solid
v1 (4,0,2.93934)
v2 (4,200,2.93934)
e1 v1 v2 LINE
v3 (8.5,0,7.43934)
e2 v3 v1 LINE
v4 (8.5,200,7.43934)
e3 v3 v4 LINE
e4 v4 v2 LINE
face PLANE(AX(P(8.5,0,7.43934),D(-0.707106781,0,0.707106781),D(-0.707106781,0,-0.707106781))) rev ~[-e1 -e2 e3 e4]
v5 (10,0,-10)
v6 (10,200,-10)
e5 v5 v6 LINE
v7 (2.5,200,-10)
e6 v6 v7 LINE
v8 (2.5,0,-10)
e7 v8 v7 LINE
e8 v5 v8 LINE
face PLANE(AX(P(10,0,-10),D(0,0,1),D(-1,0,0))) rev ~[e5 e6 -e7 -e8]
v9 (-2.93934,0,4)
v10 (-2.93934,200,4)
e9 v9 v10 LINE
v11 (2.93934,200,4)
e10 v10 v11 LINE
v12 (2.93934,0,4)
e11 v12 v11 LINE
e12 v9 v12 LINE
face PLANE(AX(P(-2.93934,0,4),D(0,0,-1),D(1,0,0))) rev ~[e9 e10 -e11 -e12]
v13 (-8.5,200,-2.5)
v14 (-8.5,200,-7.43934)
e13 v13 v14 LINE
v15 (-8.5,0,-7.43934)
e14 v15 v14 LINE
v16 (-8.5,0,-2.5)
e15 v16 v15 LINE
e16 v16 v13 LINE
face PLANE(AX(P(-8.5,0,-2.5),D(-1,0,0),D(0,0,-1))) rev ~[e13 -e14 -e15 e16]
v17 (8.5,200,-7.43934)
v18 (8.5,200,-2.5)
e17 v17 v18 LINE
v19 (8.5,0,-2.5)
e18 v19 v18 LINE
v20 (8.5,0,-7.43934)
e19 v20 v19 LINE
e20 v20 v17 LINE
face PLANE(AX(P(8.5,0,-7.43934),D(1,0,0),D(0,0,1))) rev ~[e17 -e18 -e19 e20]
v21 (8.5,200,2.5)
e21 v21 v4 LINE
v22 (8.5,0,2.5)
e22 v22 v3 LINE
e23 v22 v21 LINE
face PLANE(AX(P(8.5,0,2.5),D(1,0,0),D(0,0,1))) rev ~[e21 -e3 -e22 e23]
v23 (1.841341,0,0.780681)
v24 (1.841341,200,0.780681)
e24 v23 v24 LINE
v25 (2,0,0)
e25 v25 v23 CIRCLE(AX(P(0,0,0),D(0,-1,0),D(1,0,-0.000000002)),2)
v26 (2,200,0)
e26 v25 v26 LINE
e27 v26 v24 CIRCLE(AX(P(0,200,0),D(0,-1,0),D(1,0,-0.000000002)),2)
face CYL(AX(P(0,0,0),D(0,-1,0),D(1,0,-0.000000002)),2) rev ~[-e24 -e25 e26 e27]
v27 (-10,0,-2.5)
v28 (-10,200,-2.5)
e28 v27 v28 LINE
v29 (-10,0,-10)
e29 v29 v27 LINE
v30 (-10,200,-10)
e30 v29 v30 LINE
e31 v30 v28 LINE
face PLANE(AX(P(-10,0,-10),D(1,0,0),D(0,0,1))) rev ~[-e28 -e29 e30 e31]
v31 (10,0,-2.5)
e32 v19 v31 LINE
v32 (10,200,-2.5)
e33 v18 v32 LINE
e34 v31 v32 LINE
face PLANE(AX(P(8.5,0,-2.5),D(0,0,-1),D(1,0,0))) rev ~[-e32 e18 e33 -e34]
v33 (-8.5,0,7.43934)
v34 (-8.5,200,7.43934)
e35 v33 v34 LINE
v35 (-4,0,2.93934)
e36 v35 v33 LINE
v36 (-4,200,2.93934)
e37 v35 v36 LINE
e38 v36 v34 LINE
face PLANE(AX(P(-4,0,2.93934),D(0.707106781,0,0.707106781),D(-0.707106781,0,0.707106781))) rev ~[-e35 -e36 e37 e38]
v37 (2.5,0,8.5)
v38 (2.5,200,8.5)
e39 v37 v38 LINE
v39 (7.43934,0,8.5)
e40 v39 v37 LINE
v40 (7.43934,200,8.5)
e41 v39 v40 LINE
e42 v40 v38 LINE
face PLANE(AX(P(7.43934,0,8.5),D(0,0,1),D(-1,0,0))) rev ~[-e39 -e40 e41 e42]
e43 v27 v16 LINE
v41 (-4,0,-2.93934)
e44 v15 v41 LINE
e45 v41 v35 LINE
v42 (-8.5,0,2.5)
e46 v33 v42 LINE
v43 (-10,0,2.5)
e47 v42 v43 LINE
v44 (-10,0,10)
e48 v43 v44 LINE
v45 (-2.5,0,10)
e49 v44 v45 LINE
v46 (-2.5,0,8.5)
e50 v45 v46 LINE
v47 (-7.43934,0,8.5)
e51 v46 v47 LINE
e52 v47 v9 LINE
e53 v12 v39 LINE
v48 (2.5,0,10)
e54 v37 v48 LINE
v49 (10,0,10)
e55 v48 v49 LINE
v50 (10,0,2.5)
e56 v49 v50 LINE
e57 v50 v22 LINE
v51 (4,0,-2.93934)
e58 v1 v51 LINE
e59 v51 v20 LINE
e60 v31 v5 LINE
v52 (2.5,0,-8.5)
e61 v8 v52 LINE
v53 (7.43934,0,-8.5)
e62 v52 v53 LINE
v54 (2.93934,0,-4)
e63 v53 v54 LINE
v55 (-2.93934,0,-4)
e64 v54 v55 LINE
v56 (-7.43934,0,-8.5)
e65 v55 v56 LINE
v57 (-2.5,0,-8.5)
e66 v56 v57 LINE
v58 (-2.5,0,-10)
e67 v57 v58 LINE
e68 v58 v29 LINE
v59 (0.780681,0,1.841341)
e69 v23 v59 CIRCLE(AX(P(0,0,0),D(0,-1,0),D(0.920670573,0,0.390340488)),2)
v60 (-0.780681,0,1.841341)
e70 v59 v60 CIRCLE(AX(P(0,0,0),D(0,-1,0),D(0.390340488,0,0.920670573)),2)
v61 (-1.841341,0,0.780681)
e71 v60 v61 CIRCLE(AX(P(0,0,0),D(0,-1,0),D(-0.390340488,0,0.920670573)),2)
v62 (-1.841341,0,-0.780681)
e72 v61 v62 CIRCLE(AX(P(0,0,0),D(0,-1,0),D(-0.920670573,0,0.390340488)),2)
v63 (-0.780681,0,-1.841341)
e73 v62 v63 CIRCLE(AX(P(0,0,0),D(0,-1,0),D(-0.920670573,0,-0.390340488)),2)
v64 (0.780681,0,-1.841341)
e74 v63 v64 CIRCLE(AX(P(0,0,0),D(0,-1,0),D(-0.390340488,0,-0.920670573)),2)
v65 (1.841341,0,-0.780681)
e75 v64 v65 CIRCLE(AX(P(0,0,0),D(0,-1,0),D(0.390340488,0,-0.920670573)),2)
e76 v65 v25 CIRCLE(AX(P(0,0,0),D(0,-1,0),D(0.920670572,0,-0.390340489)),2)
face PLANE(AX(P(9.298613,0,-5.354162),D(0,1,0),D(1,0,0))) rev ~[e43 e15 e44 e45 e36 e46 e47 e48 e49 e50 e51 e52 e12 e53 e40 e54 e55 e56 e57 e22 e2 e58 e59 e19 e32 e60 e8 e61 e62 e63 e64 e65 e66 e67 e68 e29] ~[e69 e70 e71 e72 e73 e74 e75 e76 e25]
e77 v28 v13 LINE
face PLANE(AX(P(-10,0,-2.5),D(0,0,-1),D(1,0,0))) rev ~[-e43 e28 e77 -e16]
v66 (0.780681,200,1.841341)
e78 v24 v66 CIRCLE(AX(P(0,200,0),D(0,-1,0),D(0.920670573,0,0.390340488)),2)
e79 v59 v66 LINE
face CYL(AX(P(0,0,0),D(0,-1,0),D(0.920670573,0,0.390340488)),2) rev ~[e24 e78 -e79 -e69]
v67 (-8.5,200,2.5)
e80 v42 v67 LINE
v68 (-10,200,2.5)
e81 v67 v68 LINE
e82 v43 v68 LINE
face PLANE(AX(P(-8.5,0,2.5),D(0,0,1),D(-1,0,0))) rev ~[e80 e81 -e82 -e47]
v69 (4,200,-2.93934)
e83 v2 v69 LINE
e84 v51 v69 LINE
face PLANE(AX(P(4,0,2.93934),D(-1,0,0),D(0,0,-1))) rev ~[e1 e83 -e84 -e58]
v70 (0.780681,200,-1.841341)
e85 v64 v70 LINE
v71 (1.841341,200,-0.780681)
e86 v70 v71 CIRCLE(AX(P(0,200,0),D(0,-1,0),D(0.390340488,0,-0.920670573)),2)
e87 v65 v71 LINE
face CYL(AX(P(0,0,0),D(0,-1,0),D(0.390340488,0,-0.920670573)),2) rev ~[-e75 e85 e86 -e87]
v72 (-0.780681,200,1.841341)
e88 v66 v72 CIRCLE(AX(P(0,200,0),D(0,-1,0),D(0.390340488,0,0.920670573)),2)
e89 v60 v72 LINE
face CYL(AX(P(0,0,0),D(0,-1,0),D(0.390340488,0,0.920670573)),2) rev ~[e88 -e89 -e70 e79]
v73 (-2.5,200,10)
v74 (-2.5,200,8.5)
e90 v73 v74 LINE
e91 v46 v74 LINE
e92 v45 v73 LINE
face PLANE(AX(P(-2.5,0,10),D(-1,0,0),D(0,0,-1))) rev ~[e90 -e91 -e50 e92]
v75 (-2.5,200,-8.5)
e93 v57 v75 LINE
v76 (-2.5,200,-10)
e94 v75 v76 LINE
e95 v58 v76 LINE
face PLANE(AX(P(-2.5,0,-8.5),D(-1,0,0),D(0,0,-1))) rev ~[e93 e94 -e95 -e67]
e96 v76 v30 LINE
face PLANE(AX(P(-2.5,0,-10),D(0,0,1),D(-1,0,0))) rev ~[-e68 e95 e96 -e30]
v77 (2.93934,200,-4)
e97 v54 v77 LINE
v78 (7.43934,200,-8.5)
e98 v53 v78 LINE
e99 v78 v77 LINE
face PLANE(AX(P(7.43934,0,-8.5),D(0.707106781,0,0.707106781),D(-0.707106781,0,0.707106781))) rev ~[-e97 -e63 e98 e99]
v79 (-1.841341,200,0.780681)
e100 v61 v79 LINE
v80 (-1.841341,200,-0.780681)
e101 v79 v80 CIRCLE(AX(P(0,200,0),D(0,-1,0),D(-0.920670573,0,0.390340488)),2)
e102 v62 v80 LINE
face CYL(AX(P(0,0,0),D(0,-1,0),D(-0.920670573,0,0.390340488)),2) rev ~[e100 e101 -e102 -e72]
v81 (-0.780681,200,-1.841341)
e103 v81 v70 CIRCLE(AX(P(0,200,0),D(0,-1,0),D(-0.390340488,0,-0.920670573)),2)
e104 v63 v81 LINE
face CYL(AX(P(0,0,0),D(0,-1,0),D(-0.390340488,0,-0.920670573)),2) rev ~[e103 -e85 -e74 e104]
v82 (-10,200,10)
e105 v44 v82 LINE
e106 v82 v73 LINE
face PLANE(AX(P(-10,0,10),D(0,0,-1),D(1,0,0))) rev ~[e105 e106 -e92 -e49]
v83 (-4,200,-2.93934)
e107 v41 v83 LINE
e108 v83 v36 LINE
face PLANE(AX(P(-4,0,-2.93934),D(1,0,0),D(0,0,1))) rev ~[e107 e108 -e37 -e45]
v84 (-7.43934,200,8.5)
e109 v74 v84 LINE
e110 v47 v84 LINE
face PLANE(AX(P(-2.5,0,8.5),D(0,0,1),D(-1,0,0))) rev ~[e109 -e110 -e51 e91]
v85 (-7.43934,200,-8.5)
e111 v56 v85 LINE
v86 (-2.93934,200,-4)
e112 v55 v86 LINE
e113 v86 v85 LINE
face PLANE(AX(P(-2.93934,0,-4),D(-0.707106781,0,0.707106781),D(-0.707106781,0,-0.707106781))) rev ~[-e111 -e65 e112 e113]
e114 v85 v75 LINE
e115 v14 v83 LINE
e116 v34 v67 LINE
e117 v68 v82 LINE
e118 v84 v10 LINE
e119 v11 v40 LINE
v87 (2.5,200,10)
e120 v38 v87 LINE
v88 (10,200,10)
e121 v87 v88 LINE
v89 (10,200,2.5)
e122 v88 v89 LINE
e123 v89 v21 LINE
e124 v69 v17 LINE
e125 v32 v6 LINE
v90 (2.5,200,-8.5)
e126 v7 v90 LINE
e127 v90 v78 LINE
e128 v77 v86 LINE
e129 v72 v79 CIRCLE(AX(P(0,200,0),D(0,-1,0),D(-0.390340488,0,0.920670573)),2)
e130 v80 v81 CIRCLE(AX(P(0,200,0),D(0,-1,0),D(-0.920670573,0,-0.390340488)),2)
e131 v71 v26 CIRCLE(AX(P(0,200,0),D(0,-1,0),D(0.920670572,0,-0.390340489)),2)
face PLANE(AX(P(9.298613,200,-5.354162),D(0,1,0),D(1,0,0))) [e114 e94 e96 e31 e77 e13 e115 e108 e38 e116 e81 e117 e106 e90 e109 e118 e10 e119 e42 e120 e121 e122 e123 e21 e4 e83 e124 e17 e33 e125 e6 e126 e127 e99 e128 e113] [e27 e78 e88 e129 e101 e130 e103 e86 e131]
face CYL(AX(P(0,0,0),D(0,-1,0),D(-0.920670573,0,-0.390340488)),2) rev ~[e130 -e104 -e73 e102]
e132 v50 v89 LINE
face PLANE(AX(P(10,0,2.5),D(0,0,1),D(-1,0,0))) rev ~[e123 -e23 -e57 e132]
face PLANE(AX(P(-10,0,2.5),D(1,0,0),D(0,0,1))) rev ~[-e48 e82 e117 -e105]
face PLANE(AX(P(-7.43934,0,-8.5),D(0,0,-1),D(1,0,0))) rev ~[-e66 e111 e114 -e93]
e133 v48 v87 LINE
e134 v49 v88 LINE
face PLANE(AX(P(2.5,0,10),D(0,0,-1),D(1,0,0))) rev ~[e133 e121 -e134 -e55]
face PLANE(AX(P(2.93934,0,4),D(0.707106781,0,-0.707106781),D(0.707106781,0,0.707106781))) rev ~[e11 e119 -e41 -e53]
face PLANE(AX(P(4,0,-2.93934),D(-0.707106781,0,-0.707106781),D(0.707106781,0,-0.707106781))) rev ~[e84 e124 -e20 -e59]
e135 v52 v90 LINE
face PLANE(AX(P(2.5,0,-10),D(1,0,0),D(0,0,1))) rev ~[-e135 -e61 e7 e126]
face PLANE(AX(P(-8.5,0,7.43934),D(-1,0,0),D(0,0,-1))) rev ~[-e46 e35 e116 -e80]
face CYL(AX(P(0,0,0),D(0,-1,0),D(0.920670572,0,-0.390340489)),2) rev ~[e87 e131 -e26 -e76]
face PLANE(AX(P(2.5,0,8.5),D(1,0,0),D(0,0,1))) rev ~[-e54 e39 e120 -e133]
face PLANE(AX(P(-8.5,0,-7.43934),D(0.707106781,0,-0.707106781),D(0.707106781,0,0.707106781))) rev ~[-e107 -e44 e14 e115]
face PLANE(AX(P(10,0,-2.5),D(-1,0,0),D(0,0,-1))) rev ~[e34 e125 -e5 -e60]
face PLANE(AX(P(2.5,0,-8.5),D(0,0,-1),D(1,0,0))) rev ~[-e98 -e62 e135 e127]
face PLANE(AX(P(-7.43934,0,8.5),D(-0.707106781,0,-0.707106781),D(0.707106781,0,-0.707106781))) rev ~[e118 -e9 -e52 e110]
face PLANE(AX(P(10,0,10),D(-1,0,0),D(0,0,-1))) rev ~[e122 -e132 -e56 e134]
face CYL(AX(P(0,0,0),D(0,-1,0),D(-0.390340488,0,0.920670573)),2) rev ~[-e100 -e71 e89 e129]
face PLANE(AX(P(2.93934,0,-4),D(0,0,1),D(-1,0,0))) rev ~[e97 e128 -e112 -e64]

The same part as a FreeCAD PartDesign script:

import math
import FreeCAD as App
import Part
import Sketcher
Q = App.Units.Quantity

doc = App.newDocument("Part")
body = doc.addObject("PartDesign::Body", "Body")

# Sketch on XZ plane
sketch1 = body.newObject("Sketcher::SketchObject", "Sketch")
sketch1.AttachmentSupport = (doc.getObject("XZ_Plane"), [""])
sketch1.MapMode = "FlatFace"
sketch1.addGeometry(Part.LineSegment(App.Vector(8.5, -2.5, 0), App.Vector(10, -2.5, 0)), False)
sketch1.addGeometry(Part.LineSegment(App.Vector(10, -2.5, 0), App.Vector(10, -10, 0)), False)
sketch1.addGeometry(Part.LineSegment(App.Vector(10, -10, 0), App.Vector(2.5, -10, 0)), False)
sketch1.addGeometry(Part.LineSegment(App.Vector(2.5, -10, 0), App.Vector(2.5, -8.5, 0)), False)
sketch1.addGeometry(Part.LineSegment(App.Vector(2.5, -8.5, 0), App.Vector(7.4, -8.5, 0)), False)
sketch1.addGeometry(Part.LineSegment(App.Vector(7.4, -8.5, 0), App.Vector(2.9, -4, 0)), False)
sketch1.addGeometry(Part.LineSegment(App.Vector(2.9, -4, 0), App.Vector(-2.9, -4, 0)), False)
sketch1.addGeometry(Part.LineSegment(App.Vector(-2.9, -4, 0), App.Vector(-7.4, -8.5, 0)), False)
sketch1.addGeometry(Part.LineSegment(App.Vector(-7.4, -8.5, 0), App.Vector(-2.5, -8.5, 0)), False)
sketch1.addGeometry(Part.LineSegment(App.Vector(-2.5, -8.5, 0), App.Vector(-2.5, -10, 0)), False)
sketch1.addGeometry(Part.LineSegment(App.Vector(-2.5, -10, 0), App.Vector(-10, -10, 0)), False)
sketch1.addGeometry(Part.LineSegment(App.Vector(-10, -10, 0), App.Vector(-10, -2.5, 0)), False)
sketch1.addGeometry(Part.LineSegment(App.Vector(-10, -2.5, 0), App.Vector(-8.5, -2.5, 0)), False)
sketch1.addGeometry(Part.LineSegment(App.Vector(-8.5, -2.5, 0), App.Vector(-8.5, -7.4, 0)), False)
sketch1.addGeometry(Part.LineSegment(App.Vector(-8.5, -7.4, 0), App.Vector(-4, -2.9, 0)), False)
sketch1.addGeometry(Part.LineSegment(App.Vector(-4, -2.9, 0), App.Vector(-4, 2.9, 0)), False)
sketch1.addGeometry(Part.LineSegment(App.Vector(-4, 2.9, 0), App.Vector(-8.5, 7.4, 0)), False)
sketch1.addGeometry(Part.LineSegment(App.Vector(-8.5, 7.4, 0), App.Vector(-8.5, 2.5, 0)), False)
sketch1.addGeometry(Part.LineSegment(App.Vector(-8.5, 2.5, 0), App.Vector(-10, 2.5, 0)), False)
sketch1.addGeometry(Part.LineSegment(App.Vector(-10, 2.5, 0), App.Vector(-10, 10, 0)), False)
sketch1.addGeometry(Part.LineSegment(App.Vector(-10, 10, 0), App.Vector(-2.5, 10, 0)), False)
sketch1.addGeometry(Part.LineSegment(App.Vector(-2.5, 10, 0), App.Vector(-2.5, 8.5, 0)), False)
sketch1.addGeometry(Part.LineSegment(App.Vector(-2.5, 8.5, 0), App.Vector(-7.4, 8.5, 0)), False)
sketch1.addGeometry(Part.LineSegment(App.Vector(-7.4, 8.5, 0), App.Vector(-2.9, 4, 0)), False)
sketch1.addGeometry(Part.LineSegment(App.Vector(-2.9, 4, 0), App.Vector(2.9, 4, 0)), False)
sketch1.addGeometry(Part.LineSegment(App.Vector(2.9, 4, 0), App.Vector(7.4, 8.5, 0)), False)
sketch1.addGeometry(Part.LineSegment(App.Vector(7.4, 8.5, 0), App.Vector(2.5, 8.5, 0)), False)
sketch1.addGeometry(Part.LineSegment(App.Vector(2.5, 8.5, 0), App.Vector(2.5, 10, 0)), False)
sketch1.addGeometry(Part.LineSegment(App.Vector(2.5, 10, 0), App.Vector(10, 10, 0)), False)
sketch1.addGeometry(Part.LineSegment(App.Vector(10, 10, 0), App.Vector(10, 2.5, 0)), False)
sketch1.addGeometry(Part.LineSegment(App.Vector(10, 2.5, 0), App.Vector(8.5, 2.5, 0)), False)
sketch1.addGeometry(Part.LineSegment(App.Vector(8.5, 2.5, 0), App.Vector(8.5, 7.4, 0)), False)
sketch1.addGeometry(Part.LineSegment(App.Vector(8.5, 7.4, 0), App.Vector(4, 2.9, 0)), False)
sketch1.addGeometry(Part.LineSegment(App.Vector(4, 2.9, 0), App.Vector(4, -2.9, 0)), False)
sketch1.addGeometry(Part.LineSegment(App.Vector(4, -2.9, 0), App.Vector(8.5, -7.4, 0)), False)
sketch1.addGeometry(Part.LineSegment(App.Vector(8.5, -7.4, 0), App.Vector(8.5, -2.5, 0)), False)
sketch1.addGeometry(Part.ArcOfCircle(Part.Circle(App.Vector(0, 0, 0), App.Vector(0, 0, 1), 2), math.radians(-67), math.radians(-23)), False)
sketch1.addGeometry(Part.ArcOfCircle(Part.Circle(App.Vector(0, 0, 0), App.Vector(0, 0, 1), 2), math.radians(-23), math.radians(0)), False)
sketch1.addGeometry(Part.ArcOfCircle(Part.Circle(App.Vector(0, 0, 0), App.Vector(0, 0, 1), 2), math.radians(0), math.radians(23)), False)
sketch1.addGeometry(Part.ArcOfCircle(Part.Circle(App.Vector(0, 0, 0), App.Vector(0, 0, 1), 2), math.radians(23), math.radians(67)), False)
sketch1.addGeometry(Part.ArcOfCircle(Part.Circle(App.Vector(0, 0, 0), App.Vector(0, 0, 1), 2), math.radians(67), math.radians(113)), False)
sketch1.addGeometry(Part.ArcOfCircle(Part.Circle(App.Vector(0, 0, 0), App.Vector(0, 0, 1), 2), math.radians(113), math.radians(157)), False)
sketch1.addGeometry(Part.ArcOfCircle(Part.Circle(App.Vector(0, 0, 0), App.Vector(0, 0, 1), 2), math.radians(157), math.radians(203)), False)
sketch1.addGeometry(Part.ArcOfCircle(Part.Circle(App.Vector(0, 0, 0), App.Vector(0, 0, 1), 2), math.radians(-157), math.radians(-113)), False)
sketch1.addGeometry(Part.ArcOfCircle(Part.Circle(App.Vector(0, 0, 0), App.Vector(0, 0, 1), 2), math.radians(-113), math.radians(-67)), False)
sketch1.addConstraint(Sketcher.Constraint("Coincident", 0, 2, 1, 1))
sketch1.addConstraint(Sketcher.Constraint("Coincident", 1, 2, 2, 1))
sketch1.addConstraint(Sketcher.Constraint("Coincident", 2, 2, 3, 1))
sketch1.addConstraint(Sketcher.Constraint("Coincident", 3, 2, 4, 1))
sketch1.addConstraint(Sketcher.Constraint("Coincident", 4, 2, 5, 1))
sketch1.addConstraint(Sketcher.Constraint("Coincident", 5, 2, 6, 1))
sketch1.addConstraint(Sketcher.Constraint("Coincident", 6, 2, 7, 1))
sketch1.addConstraint(Sketcher.Constraint("Coincident", 7, 2, 8, 1))
sketch1.addConstraint(Sketcher.Constraint("Coincident", 8, 2, 9, 1))
sketch1.addConstraint(Sketcher.Constraint("Coincident", 9, 2, 10, 1))
sketch1.addConstraint(Sketcher.Constraint("Coincident", 10, 2, 11, 1))
sketch1.addConstraint(Sketcher.Constraint("Coincident", 11, 2, 12, 1))
sketch1.addConstraint(Sketcher.Constraint("Coincident", 12, 2, 13, 1))
sketch1.addConstraint(Sketcher.Constraint("Coincident", 13, 2, 14, 1))
sketch1.addConstraint(Sketcher.Constraint("Coincident", 14, 2, 15, 1))
sketch1.addConstraint(Sketcher.Constraint("Coincident", 15, 2, 16, 1))
sketch1.addConstraint(Sketcher.Constraint("Coincident", 16, 2, 17, 1))
sketch1.addConstraint(Sketcher.Constraint("Coincident", 17, 2, 18, 1))
sketch1.addConstraint(Sketcher.Constraint("Coincident", 18, 2, 19, 1))
sketch1.addConstraint(Sketcher.Constraint("Coincident", 19, 2, 20, 1))
sketch1.addConstraint(Sketcher.Constraint("Coincident", 20, 2, 21, 1))
sketch1.addConstraint(Sketcher.Constraint("Coincident", 21, 2, 22, 1))
sketch1.addConstraint(Sketcher.Constraint("Coincident", 22, 2, 23, 1))
sketch1.addConstraint(Sketcher.Constraint("Coincident", 23, 2, 24, 1))
sketch1.addConstraint(Sketcher.Constraint("Coincident", 24, 2, 25, 1))
sketch1.addConstraint(Sketcher.Constraint("Coincident", 25, 2, 26, 1))
sketch1.addConstraint(Sketcher.Constraint("Coincident", 26, 2, 27, 1))
sketch1.addConstraint(Sketcher.Constraint("Coincident", 27, 2, 28, 1))
sketch1.addConstraint(Sketcher.Constraint("Coincident", 28, 2, 29, 1))
sketch1.addConstraint(Sketcher.Constraint("Coincident", 29, 2, 30, 1))
sketch1.addConstraint(Sketcher.Constraint("Coincident", 30, 2, 31, 1))
sketch1.addConstraint(Sketcher.Constraint("Coincident", 31, 2, 32, 1))
sketch1.addConstraint(Sketcher.Constraint("Coincident", 32, 2, 33, 1))
sketch1.addConstraint(Sketcher.Constraint("Coincident", 33, 2, 34, 1))
sketch1.addConstraint(Sketcher.Constraint("Coincident", 34, 2, 35, 1))
sketch1.addConstraint(Sketcher.Constraint("Coincident", 35, 2, 0, 1))
sketch1.addConstraint(Sketcher.Constraint("Tangent", 36, 2, 37, 1))
sketch1.addConstraint(Sketcher.Constraint("Tangent", 37, 2, 38, 1))
sketch1.addConstraint(Sketcher.Constraint("Tangent", 38, 2, 39, 1))
sketch1.addConstraint(Sketcher.Constraint("Tangent", 39, 2, 40, 1))
sketch1.addConstraint(Sketcher.Constraint("Tangent", 40, 2, 41, 1))
sketch1.addConstraint(Sketcher.Constraint("Tangent", 41, 2, 42, 1))
sketch1.addConstraint(Sketcher.Constraint("Tangent", 42, 2, 43, 1))
sketch1.addConstraint(Sketcher.Constraint("Tangent", 43, 2, 44, 1))
sketch1.addConstraint(Sketcher.Constraint("Tangent", 44, 2, 36, 1))
sketch1.addConstraint(Sketcher.Constraint("Horizontal", 0))
sketch1.addConstraint(Sketcher.Constraint("Vertical", 1))
sketch1.addConstraint(Sketcher.Constraint("Horizontal", 2))
sketch1.addConstraint(Sketcher.Constraint("Vertical", 3))
sketch1.addConstraint(Sketcher.Constraint("Horizontal", 4))
sketch1.addConstraint(Sketcher.Constraint("Horizontal", 6))
sketch1.addConstraint(Sketcher.Constraint("Horizontal", 8))
sketch1.addConstraint(Sketcher.Constraint("Vertical", 9))
sketch1.addConstraint(Sketcher.Constraint("Horizontal", 10))
sketch1.addConstraint(Sketcher.Constraint("Vertical", 11))
sketch1.addConstraint(Sketcher.Constraint("Horizontal", 12))
sketch1.addConstraint(Sketcher.Constraint("Vertical", 13))
sketch1.addConstraint(Sketcher.Constraint("Vertical", 15))
sketch1.addConstraint(Sketcher.Constraint("Vertical", 17))
sketch1.addConstraint(Sketcher.Constraint("Horizontal", 18))
sketch1.addConstraint(Sketcher.Constraint("Vertical", 19))
sketch1.addConstraint(Sketcher.Constraint("Horizontal", 20))
sketch1.addConstraint(Sketcher.Constraint("Vertical", 21))
sketch1.addConstraint(Sketcher.Constraint("Horizontal", 22))
sketch1.addConstraint(Sketcher.Constraint("Horizontal", 24))
sketch1.addConstraint(Sketcher.Constraint("Horizontal", 26))
sketch1.addConstraint(Sketcher.Constraint("Vertical", 27))
sketch1.addConstraint(Sketcher.Constraint("Horizontal", 28))
sketch1.addConstraint(Sketcher.Constraint("Vertical", 29))
sketch1.addConstraint(Sketcher.Constraint("Horizontal", 30))
sketch1.addConstraint(Sketcher.Constraint("Vertical", 31))
sketch1.addConstraint(Sketcher.Constraint("Vertical", 33))
sketch1.addConstraint(Sketcher.Constraint("Vertical", 35))
sketch1.addConstraint(Sketcher.Constraint("Coincident", 36, 3, -1, 1))
sketch1.addConstraint(Sketcher.Constraint("Coincident", 38, 3, -1, 1))
sketch1.addConstraint(Sketcher.Constraint("Coincident", 40, 3, -1, 1))
sketch1.addConstraint(Sketcher.Constraint("Coincident", 42, 3, -1, 1))
sketch1.addConstraint(Sketcher.Constraint("Symmetric", 0, 2, 18, 2, -1, 1))
sketch1.addConstraint(Sketcher.Constraint("Symmetric", 2, 2, 20, 2, -1, 1))
sketch1.addConstraint(Sketcher.Constraint("Symmetric", 4, 2, 22, 2, -1, 1))
sketch1.addConstraint(Sketcher.Constraint("Symmetric", 5, 2, 23, 2, -1, 1))
sketch1.addConstraint(Sketcher.Constraint("Symmetric", 7, 2, 25, 2, -1, 1))
sketch1.addConstraint(Sketcher.Constraint("Symmetric", 9, 2, 27, 2, -1, 1))
sketch1.addConstraint(Sketcher.Constraint("Symmetric", 11, 2, 29, 2, -1, 1))
sketch1.addConstraint(Sketcher.Constraint("Symmetric", 13, 2, 31, 2, -1, 1))
sketch1.addConstraint(Sketcher.Constraint("Symmetric", 14, 2, 32, 2, -1, 1))
sketch1.addConstraint(Sketcher.Constraint("Symmetric", 16, 2, 34, 2, -1, 1))
sketch1.addConstraint(Sketcher.Constraint("Symmetric", 4, 2, 7, 2, -2))
sketch1.addConstraint(Sketcher.Constraint("Symmetric", 2, 2, 9, 2, -2))
sketch1.addConstraint(Sketcher.Constraint("Symmetric", 0, 2, 11, 2, -2))
sketch1.addConstraint(Sketcher.Constraint("Symmetric", 16, 2, 31, 2, -2))
sketch1.addConstraint(Sketcher.Constraint("PointOnObject", 37, 2, -1))
sketch1.addConstraint(Sketcher.Constraint("Perpendicular", 5, 7))
sketch1.addConstraint(Sketcher.Constraint("Parallel", 7, 14))
sketch1.addConstraint(Sketcher.Constraint("Perpendicular", 14, 16))
sketch1.addConstraint(Sketcher.Constraint("Perpendicular", 23, 25))
sketch1.addConstraint(Sketcher.Constraint("Perpendicular", 32, 34))
sketch1.addConstraint(Sketcher.Constraint("Horizontal", 15, 2, 32, 2))
sketch1.addConstraint(Sketcher.Constraint("Horizontal", 39, 2, 40, 2))
sketch1.addConstraint(Sketcher.Constraint("Horizontal", 38, 2, 41, 2))
sketch1.addConstraint(Sketcher.Constraint("Horizontal", 36, 2, 42, 2))
sketch1.addConstraint(Sketcher.Constraint("Horizontal", 43, 2, 44, 2))
sketch1.addConstraint(Sketcher.Constraint("Vertical", 36, 2, 38, 2))
sketch1.addConstraint(Sketcher.Constraint("Vertical", 40, 2, 43, 2))
sketch1.addConstraint(Sketcher.Constraint("Equal", 28, 1))
sketch1.addConstraint(Sketcher.Constraint("Equal", 30, 3))
sketch1.addConstraint(Sketcher.Constraint("Equal", 26, 13))
sketch1.addConstraint(Sketcher.Constraint("Equal", 24, 15))
sketch1.addConstraint(Sketcher.Constraint("Equal", 7, 14))
sketch1.addConstraint(Sketcher.Constraint("Radius", 36, Q("2 mm")))
sketch1.addConstraint(Sketcher.Constraint("DistanceX", 0, 1, 0, 2, Q("1.5 mm")))
sketch1.addConstraint(Sketcher.Constraint("DistanceX", 2, 2, 2, 1, Q("7.5 mm")))
sketch1.addConstraint(Sketcher.Constraint("DistanceX", -1, 1, 0, 2, Q("10 mm")))
sketch1.addConstraint(Sketcher.Constraint("DistanceY", 5, 2, -1, 1, Q("4 mm")))
sketch1.addConstraint(Sketcher.Constraint("DistanceX", 4, 1, 4, 2, Q("4.93934 mm")))
sketch1.addConstraint(Sketcher.Constraint("DistanceX", -1, 1, 36, 2, Q("1.841341 mm")))
sketch1.addConstraint(Sketcher.Constraint("DistanceX", -1, 1, 39, 2, Q("0.780681 mm")))
pad1 = body.newObject("PartDesign::Pad", "Pad")
pad1.Profile = sketch1
pad1.Length = 200
pad1.Reversed = True

doc.recompute()
